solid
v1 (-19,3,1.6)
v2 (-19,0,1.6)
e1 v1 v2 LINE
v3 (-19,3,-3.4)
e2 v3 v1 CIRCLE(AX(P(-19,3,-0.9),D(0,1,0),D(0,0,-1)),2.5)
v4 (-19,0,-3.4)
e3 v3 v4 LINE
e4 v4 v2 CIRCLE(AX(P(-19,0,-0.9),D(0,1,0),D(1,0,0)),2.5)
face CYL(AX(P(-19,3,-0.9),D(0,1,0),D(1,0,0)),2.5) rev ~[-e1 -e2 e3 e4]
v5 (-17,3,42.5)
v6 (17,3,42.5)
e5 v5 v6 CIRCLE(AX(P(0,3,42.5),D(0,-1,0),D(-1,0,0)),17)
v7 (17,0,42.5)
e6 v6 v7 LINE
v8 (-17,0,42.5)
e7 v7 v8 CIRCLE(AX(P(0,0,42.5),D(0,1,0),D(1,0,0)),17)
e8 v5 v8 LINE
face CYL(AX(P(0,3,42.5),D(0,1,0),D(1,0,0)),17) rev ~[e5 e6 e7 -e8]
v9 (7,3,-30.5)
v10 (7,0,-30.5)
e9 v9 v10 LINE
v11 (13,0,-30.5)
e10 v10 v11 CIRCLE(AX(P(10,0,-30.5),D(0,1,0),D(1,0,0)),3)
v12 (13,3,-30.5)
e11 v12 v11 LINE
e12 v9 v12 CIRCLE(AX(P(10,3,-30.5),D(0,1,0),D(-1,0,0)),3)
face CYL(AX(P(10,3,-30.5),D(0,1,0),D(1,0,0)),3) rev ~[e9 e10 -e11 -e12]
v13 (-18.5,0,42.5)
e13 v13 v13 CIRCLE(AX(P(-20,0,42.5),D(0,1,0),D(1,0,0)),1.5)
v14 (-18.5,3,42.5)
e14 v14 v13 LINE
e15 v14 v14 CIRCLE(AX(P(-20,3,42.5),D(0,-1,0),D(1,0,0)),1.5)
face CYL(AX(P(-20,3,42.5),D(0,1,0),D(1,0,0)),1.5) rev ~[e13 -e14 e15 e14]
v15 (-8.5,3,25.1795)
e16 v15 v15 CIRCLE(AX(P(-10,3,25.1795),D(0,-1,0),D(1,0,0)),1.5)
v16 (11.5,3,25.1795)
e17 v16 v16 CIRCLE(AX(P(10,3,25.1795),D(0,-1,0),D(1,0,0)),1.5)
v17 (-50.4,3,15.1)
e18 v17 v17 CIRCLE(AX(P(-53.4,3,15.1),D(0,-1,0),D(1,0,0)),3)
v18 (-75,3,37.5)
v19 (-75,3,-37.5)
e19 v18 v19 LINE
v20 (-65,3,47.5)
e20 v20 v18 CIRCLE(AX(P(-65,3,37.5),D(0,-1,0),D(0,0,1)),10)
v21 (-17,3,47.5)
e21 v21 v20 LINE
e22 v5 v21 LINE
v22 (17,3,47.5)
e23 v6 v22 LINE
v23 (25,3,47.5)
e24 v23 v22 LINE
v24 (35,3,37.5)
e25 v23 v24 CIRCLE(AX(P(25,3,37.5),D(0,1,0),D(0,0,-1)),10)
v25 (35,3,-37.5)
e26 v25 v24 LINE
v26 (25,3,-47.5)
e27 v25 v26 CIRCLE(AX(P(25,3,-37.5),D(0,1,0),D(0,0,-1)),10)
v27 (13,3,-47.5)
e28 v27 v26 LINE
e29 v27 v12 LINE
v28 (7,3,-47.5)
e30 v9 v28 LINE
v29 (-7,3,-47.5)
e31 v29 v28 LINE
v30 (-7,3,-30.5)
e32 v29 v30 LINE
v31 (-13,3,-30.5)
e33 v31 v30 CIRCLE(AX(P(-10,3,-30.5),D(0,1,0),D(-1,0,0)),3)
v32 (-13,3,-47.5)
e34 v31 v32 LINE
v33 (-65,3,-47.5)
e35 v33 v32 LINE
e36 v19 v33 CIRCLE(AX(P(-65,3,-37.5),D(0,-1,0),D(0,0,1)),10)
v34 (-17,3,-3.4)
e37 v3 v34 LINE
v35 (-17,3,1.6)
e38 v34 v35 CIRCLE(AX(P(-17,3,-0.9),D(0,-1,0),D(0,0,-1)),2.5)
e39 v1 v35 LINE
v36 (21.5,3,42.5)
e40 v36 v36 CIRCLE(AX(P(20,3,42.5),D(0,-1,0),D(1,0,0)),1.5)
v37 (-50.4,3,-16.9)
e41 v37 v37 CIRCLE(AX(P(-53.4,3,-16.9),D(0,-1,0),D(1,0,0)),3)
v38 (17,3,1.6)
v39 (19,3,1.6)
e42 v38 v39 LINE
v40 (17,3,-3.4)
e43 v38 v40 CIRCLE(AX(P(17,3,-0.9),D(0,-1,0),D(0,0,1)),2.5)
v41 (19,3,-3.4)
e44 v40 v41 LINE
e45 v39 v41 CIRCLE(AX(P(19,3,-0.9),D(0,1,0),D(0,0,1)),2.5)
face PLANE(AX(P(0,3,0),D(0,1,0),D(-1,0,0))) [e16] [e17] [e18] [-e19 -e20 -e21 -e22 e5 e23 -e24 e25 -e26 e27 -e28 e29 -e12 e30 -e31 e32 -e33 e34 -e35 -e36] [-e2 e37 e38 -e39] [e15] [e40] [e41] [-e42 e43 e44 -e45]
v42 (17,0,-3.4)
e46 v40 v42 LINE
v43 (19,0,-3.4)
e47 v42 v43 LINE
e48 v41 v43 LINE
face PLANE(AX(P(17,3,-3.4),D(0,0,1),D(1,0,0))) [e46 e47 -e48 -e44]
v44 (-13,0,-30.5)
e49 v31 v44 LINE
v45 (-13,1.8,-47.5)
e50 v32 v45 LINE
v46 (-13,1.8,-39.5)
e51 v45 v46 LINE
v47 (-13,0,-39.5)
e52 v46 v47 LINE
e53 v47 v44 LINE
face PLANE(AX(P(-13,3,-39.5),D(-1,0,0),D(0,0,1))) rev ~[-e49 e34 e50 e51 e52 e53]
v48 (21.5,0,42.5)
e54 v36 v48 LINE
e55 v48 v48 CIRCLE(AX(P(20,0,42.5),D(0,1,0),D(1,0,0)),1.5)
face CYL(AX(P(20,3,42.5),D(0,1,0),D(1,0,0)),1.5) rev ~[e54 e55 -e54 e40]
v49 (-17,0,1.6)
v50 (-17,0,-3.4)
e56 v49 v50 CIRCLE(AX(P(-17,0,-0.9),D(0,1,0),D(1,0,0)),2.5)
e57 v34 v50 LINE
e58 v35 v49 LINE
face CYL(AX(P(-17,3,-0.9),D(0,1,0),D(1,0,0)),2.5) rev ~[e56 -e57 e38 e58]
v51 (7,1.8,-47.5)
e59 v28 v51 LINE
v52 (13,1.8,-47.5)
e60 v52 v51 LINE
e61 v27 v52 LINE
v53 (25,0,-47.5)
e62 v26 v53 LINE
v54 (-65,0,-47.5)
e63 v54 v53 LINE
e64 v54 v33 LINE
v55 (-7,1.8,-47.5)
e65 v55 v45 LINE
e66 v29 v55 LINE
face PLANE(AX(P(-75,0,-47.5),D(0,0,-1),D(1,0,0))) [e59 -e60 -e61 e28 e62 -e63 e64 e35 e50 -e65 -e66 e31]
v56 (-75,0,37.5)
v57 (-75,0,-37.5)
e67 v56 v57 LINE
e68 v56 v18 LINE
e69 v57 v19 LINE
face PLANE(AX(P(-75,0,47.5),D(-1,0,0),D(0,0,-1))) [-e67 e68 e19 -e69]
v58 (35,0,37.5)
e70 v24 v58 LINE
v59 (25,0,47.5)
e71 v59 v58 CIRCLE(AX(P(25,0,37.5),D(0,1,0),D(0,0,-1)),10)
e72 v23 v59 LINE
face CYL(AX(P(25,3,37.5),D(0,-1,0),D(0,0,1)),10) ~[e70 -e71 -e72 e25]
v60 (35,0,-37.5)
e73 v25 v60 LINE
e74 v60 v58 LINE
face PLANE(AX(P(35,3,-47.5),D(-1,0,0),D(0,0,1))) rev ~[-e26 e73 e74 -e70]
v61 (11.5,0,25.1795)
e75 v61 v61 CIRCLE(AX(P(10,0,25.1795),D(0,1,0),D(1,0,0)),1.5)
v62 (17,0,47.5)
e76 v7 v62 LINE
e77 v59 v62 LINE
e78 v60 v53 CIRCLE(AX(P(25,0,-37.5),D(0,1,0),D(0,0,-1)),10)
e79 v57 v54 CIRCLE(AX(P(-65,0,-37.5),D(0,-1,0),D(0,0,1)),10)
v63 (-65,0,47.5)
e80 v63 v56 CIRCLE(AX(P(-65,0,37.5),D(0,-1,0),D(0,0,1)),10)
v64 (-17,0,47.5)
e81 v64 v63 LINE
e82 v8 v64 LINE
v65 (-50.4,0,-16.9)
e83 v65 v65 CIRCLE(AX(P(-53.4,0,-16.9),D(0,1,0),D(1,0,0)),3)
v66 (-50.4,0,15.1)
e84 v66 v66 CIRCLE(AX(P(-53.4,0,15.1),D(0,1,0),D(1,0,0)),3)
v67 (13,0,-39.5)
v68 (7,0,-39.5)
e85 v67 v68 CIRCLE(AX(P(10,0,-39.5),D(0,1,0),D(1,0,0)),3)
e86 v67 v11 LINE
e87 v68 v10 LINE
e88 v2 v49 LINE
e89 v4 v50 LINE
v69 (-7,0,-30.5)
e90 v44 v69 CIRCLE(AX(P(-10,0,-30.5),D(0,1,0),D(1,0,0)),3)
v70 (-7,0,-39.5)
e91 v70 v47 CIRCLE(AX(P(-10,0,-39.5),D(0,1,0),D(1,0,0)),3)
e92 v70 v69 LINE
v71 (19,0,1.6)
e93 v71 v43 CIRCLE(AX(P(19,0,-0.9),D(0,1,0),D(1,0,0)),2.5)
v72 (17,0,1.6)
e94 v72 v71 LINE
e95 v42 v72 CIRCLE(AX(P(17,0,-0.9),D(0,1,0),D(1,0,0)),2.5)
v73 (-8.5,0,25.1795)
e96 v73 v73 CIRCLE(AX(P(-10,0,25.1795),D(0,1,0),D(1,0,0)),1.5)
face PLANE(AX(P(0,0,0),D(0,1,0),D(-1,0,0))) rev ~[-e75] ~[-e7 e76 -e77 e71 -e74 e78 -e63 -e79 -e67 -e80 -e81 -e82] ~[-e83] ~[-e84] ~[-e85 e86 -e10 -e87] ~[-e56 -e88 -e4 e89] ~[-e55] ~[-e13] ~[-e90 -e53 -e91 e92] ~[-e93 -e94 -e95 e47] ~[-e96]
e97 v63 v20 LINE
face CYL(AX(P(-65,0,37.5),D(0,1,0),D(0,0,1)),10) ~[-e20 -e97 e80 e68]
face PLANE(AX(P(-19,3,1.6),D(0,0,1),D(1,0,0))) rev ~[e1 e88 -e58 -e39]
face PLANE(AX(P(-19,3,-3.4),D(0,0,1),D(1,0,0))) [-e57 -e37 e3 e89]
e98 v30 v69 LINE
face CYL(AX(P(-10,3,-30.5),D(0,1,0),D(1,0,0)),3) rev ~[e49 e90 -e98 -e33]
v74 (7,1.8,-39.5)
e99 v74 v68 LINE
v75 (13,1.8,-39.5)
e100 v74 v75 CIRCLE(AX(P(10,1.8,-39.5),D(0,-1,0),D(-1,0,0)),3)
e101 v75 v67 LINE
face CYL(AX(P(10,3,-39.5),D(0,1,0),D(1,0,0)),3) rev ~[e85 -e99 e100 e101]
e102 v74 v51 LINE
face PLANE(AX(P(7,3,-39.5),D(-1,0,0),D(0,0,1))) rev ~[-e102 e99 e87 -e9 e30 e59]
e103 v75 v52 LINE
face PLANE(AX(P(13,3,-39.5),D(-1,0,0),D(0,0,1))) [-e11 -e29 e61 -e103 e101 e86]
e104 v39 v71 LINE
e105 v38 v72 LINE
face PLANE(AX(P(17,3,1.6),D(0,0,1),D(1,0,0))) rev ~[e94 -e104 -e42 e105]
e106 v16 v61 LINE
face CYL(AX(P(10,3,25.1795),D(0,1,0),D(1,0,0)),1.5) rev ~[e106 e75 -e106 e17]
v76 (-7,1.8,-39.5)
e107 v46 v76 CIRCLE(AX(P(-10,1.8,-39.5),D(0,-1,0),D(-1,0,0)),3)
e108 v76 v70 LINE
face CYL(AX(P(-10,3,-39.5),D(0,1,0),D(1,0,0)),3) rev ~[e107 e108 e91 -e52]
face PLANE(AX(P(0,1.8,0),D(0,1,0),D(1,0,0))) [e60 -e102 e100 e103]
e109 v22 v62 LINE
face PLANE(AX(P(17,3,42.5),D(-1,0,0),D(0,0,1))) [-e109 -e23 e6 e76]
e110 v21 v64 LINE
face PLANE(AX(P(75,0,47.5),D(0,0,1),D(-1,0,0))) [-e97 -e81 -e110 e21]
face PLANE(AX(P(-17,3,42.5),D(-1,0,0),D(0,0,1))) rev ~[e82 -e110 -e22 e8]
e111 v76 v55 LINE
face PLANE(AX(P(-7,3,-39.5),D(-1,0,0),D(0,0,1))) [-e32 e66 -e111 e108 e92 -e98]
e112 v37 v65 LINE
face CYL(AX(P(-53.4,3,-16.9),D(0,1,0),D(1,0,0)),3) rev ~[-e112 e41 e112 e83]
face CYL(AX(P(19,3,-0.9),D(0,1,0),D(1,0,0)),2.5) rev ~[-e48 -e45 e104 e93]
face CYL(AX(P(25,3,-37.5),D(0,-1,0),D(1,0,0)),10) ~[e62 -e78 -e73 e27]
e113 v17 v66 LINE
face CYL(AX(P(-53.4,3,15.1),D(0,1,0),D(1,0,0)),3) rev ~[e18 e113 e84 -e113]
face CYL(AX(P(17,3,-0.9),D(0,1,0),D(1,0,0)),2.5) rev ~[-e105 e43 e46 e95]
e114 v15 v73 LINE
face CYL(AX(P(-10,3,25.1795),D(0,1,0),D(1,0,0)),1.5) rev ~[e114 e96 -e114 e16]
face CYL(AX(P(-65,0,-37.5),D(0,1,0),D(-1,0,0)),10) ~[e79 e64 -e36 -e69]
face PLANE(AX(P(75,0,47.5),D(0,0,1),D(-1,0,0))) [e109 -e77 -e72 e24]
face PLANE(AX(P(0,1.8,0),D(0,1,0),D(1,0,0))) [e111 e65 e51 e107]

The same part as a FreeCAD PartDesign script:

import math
import FreeCAD as App
import Part
import Sketcher

V = App.Vector


def edges_at(feature, points):
    """Names of the edges that pass closest to the given points."""
    edges = feature.Shape.Edges
    near = lambda p: min(range(len(edges)), key=lambda i: edges[i].distToShape(Part.Vertex(*p))[0])
    return sorted({f"Edge{near(p) + 1}" for p in points})

doc = App.newDocument("Part")
body = doc.addObject("PartDesign::Body", "Body")

# Sketch on XZ plane
sketch1 = doc.addObject("Sketcher::SketchObject", "Sketch")
body.addObject(sketch1)
sketch1.AttachmentSupport = (doc.XZ_Plane, [""])
sketch1.MapMode = "FlatFace"
sketch1.addGeometry(Part.LineSegment(V(-75, 48, 0), V(75, 48, 0)), False)
sketch1.addGeometry(Part.LineSegment(V(75, 48, 0), V(75, -48, 0)), False)
sketch1.addGeometry(Part.LineSegment(V(75, -48, 0), V(-75, -48, 0)), False)
sketch1.addGeometry(Part.LineSegment(V(-75, -48, 0), V(-75, 48, 0)), False)
sketch1.addConstraint(Sketcher.Constraint("Coincident", 0, 2, 1, 1))
sketch1.addConstraint(Sketcher.Constraint("Coincident", 1, 2, 2, 1))
sketch1.addConstraint(Sketcher.Constraint("Coincident", 2, 2, 3, 1))
sketch1.addConstraint(Sketcher.Constraint("Coincident", 3, 2, 0, 1))
sketch1.addConstraint(Sketcher.Constraint("Horizontal", 0))
sketch1.addConstraint(Sketcher.Constraint("Vertical", 1))
sketch1.addConstraint(Sketcher.Constraint("Horizontal", 2))
sketch1.addConstraint(Sketcher.Constraint("Vertical", 3))
sketch1.addConstraint(Sketcher.Constraint("Symmetric", 0, 2, 2, 2, -1, 1))
sketch1.addConstraint(Sketcher.Constraint("DistanceX", 0, 1, 0, 2, 150.0))
sketch1.addConstraint(Sketcher.Constraint("DistanceY", 1, 2, 1, 1, 95.0))
pad1 = doc.addObject("PartDesign::Pad", "Pad")
body.addObject(pad1)
pad1.Profile = sketch1
pad1.Length = 3
pad1.Reversed = True

# Sketch on XZ plane
sketch2 = doc.addObject("Sketcher::SketchObject", "Sketch001")
body.addObject(sketch2)
sketch2.AttachmentSupport = (doc.XZ_Plane, [""])
sketch2.MapMode = "FlatFace"
sketch2.AttachmentOffset = App.Placement(V(0, 0, -3), App.Rotation())
sketch2.addGeometry(Part.ArcOfCircle(Part.Circle(V(10, -39.5, 0), V(0, 0, 1), 3), math.radians(180), math.radians(360)), False)
sketch2.addGeometry(Part.LineSegment(V(7, -39.5, 0), V(7, -30.5, 0)), False)
sketch2.addGeometry(Part.ArcOfCircle(Part.Circle(V(10, -30.5, 0), V(0, 0, 1), 3), math.radians(0), math.radians(180)), False)
sketch2.addGeometry(Part.LineSegment(V(13, -30.5, 0), V(13, -39.5, 0)), False)
sketch2.addGeometry(Part.ArcOfCircle(Part.Circle(V(-10, -39.5, 0), V(0, 0, 1), 3), math.radians(180), math.radians(360)), False)
sketch2.addGeometry(Part.LineSegment(V(-13, -39.5, 0), V(-13, -30.5, 0)), False)
sketch2.addGeometry(Part.ArcOfCircle(Part.Circle(V(-10, -30.5, 0), V(0, 0, 1), 3), math.radians(0), math.radians(180)), False)
sketch2.addGeometry(Part.LineSegment(V(-7, -30.5, 0), V(-7, -39.5, 0)), False)
sketch2.addConstraint(Sketcher.Constraint("Tangent", 0, 1, 1, 1))
sketch2.addConstraint(Sketcher.Constraint("Tangent", 1, 2, 2, 2))
sketch2.addConstraint(Sketcher.Constraint("Tangent", 2, 1, 3, 1))
sketch2.addConstraint(Sketcher.Constraint("Tangent", 3, 2, 0, 2))
sketch2.addConstraint(Sketcher.Constraint("Tangent", 4, 1, 5, 1))
sketch2.addConstraint(Sketcher.Constraint("Tangent", 5, 2, 6, 2))
sketch2.addConstraint(Sketcher.Constraint("Tangent", 6, 1, 7, 1))
sketch2.addConstraint(Sketcher.Constraint("Tangent", 7, 2, 4, 2))
sketch2.addConstraint(Sketcher.Constraint("Vertical", 1))
sketch2.addConstraint(Sketcher.Constraint("Vertical", 3))
sketch2.addConstraint(Sketcher.Constraint("Vertical", 5))
sketch2.addConstraint(Sketcher.Constraint("Vertical", 7))
sketch2.addConstraint(Sketcher.Constraint("Equal", 2, 4))
sketch2.addConstraint(Sketcher.Constraint("Symmetric", 0, 3, 4, 3, -2))
sketch2.addConstraint(Sketcher.Constraint("Horizontal", 2, 3, 6, 3))
sketch2.addConstraint(Sketcher.Constraint("Radius", 0, 3.0))
sketch2.addConstraint(Sketcher.Constraint("DistanceX", 4, 3, 0, 3, 20.0))
sketch2.addConstraint(Sketcher.Constraint("DistanceY", 1, 1, 1, 2, 9.0))
sketch2.addConstraint(Sketcher.Constraint("DistanceY", 0, 3, -1, 1, 39.5))
pocket1 = doc.addObject("PartDesign::Pocket", "Pocket")
body.addObject(pocket1)
pocket1.Profile = sketch2
pocket1.Type = "ThroughAll"
pocket1.Reversed = True

# Sketch on XZ plane
sketch3 = doc.addObject("Sketcher::SketchObject", "Sketch002")
body.addObject(sketch3)
sketch3.AttachmentSupport = (doc.XZ_Plane, [""])
sketch3.MapMode = "FlatFace"
sketch3.AttachmentOffset = App.Placement(V(0, 0, -3), App.Rotation())
sketch3.addGeometry(Part.LineSegment(V(13, -39.5, 0), V(13, -47.5, 0)), False)
sketch3.addGeometry(Part.LineSegment(V(13, -47.5, 0), V(7, -47.5, 0)), False)
sketch3.addGeometry(Part.LineSegment(V(7, -47.5, 0), V(7, -39.5, 0)), False)
sketch3.addGeometry(Part.ArcOfCircle(Part.Circle(V(10, -39.5, 0), V(0, 0, 1), 3), math.radians(180), math.radians(360)), False)
sketch3.addGeometry(Part.LineSegment(V(-7, -39.5, 0), V(-7, -47.5, 0)), False)
sketch3.addGeometry(Part.LineSegment(V(-7, -47.5, 0), V(-13, -47.5, 0)), False)
sketch3.addGeometry(Part.LineSegment(V(-13, -47.5, 0), V(-13, -39.5, 0)), False)
sketch3.addGeometry(Part.ArcOfCircle(Part.Circle(V(-10, -39.5, 0), V(0, 0, 1), 3), math.radians(180), math.radians(360)), False)
sketch3.addConstraint(Sketcher.Constraint("Coincident", 0, 2, 1, 1))
sketch3.addConstraint(Sketcher.Constraint("Coincident", 1, 2, 2, 1))
sketch3.addConstraint(Sketcher.Constraint("Tangent", 2, 2, 3, 1))
sketch3.addConstraint(Sketcher.Constraint("Tangent", 3, 2, 0, 1))
sketch3.addConstraint(Sketcher.Constraint("Coincident", 4, 2, 5, 1))
sketch3.addConstraint(Sketcher.Constraint("Coincident", 5, 2, 6, 1))
sketch3.addConstraint(Sketcher.Constraint("Tangent", 6, 2, 7, 1))
sketch3.addConstraint(Sketcher.Constraint("Tangent", 7, 2, 4, 1))
sketch3.addConstraint(Sketcher.Constraint("Vertical", 0))
sketch3.addConstraint(Sketcher.Constraint("Horizontal", 1))
sketch3.addConstraint(Sketcher.Constraint("Vertical", 2))
sketch3.addConstraint(Sketcher.Constraint("Vertical", 4))
sketch3.addConstraint(Sketcher.Constraint("Horizontal", 5))
sketch3.addConstraint(Sketcher.Constraint("Vertical", 6))
sketch3.addConstraint(Sketcher.Constraint("Equal", 3, 7))
sketch3.addConstraint(Sketcher.Constraint("Symmetric", 3, 3, 7, 3, -2))
sketch3.addConstraint(Sketcher.Constraint("Horizontal", 1, 2, 4, 2))
sketch3.addConstraint(Sketcher.Constraint("Radius", 3, 3.0))
sketch3.addConstraint(Sketcher.Constraint("DistanceX", 7, 3, 3, 3, 20.0))
sketch3.addConstraint(Sketcher.Constraint("DistanceY", 0, 2, 0, 1, 8.0))
sketch3.addConstraint(Sketcher.Constraint("DistanceY", 3, 3, -1, 1, 39.5))
pocket2 = doc.addObject("PartDesign::Pocket", "Pocket001")
body.addObject(pocket2)
pocket2.Profile = sketch3
pocket2.Length = 1.2
pocket2.Reversed = True

# Sketch on XZ plane
sketch4 = doc.addObject("Sketcher::SketchObject", "Sketch003")
body.addObject(sketch4)
sketch4.AttachmentSupport = (doc.XZ_Plane, [""])
sketch4.MapMode = "FlatFace"
sketch4.AttachmentOffset = App.Placement(V(0, 0, -3), App.Rotation())
sketch4.addGeometry(Part.Circle(V(-53.4, 15.1, 0), V(0, 0, 1), 3), False)
sketch4.addGeometry(Part.Circle(V(-53.4, -16.9, 0), V(0, 0, 1), 3), False)
sketch4.addGeometry(Part.ArcOfCircle(Part.Circle(V(-17, -0.9, 0), V(0, 0, 1), 2.5), math.radians(-90), math.radians(90)), False)
sketch4.addGeometry(Part.LineSegment(V(-17, -3.4, 0), V(-19, -3.4, 0)), False)
sketch4.addGeometry(Part.ArcOfCircle(Part.Circle(V(-19, -0.9, 0), V(0, 0, 1), 2.5), math.radians(90), math.radians(270)), False)
sketch4.addGeometry(Part.LineSegment(V(-19, 1.6, 0), V(-17, 1.6, 0)), False)
sketch4.addGeometry(Part.ArcOfCircle(Part.Circle(V(17, -0.9, 0), V(0, 0, 1), 2.5), math.radians(90), math.radians(270)), False)
sketch4.addGeometry(Part.LineSegment(V(17, 1.6, 0), V(19, 1.6, 0)), False)
sketch4.addGeometry(Part.ArcOfCircle(Part.Circle(V(19, -0.9, 0), V(0, 0, 1), 2.5), math.radians(-90), math.radians(90)), False)
sketch4.addGeometry(Part.LineSegment(V(19, -3.4, 0), V(17, -3.4, 0)), False)
sketch4.addConstraint(Sketcher.Constraint("Tangent", 2, 1, 3, 1))
sketch4.addConstraint(Sketcher.Constraint("Tangent", 3, 2, 4, 2))
sketch4.addConstraint(Sketcher.Constraint("Tangent", 4, 1, 5, 1))
sketch4.addConstraint(Sketcher.Constraint("Tangent", 5, 2, 2, 2))
sketch4.addConstraint(Sketcher.Constraint("Tangent", 6, 1, 7, 1))
sketch4.addConstraint(Sketcher.Constraint("Tangent", 7, 2, 8, 2))
sketch4.addConstraint(Sketcher.Constraint("Tangent", 8, 1, 9, 1))
sketch4.addConstraint(Sketcher.Constraint("Tangent", 9, 2, 6, 2))
sketch4.addConstraint(Sketcher.Constraint("Horizontal", 3))
sketch4.addConstraint(Sketcher.Constraint("Horizontal", 5))
sketch4.addConstraint(Sketcher.Constraint("Horizontal", 7))
sketch4.addConstraint(Sketcher.Constraint("Horizontal", 9))
sketch4.addConstraint(Sketcher.Constraint("Equal", 0, 1))
sketch4.addConstraint(Sketcher.Constraint("Equal", 4, 6))
sketch4.addConstraint(Sketcher.Constraint("Symmetric", 2, 3, 6, 3, -2))
sketch4.addConstraint(Sketcher.Constraint("Vertical", 0, 3, 1, 3))
sketch4.addConstraint(Sketcher.Constraint("Equal", 5, 7))
sketch4.addConstraint(Sketcher.Constraint("Diameter", 0, 6.0))
sketch4.addConstraint(Sketcher.Constraint("Radius", 2, 2.5))
sketch4.addConstraint(Sketcher.Constraint("DistanceX", 3, 2, 3, 1, 2.0))
sketch4.addConstraint(Sketcher.Constraint("DistanceY", 1, 3, 0, 3, 32.0))
sketch4.addConstraint(Sketcher.Constraint("DistanceX", 4, 3, 8, 3, 38.0))
sketch4.addConstraint(Sketcher.Constraint("DistanceX", 0, 3, -1, 1, 53.4))
sketch4.addConstraint(Sketcher.Constraint("DistanceY", 2, 3, 0, 3, 16.0))
sketch4.addConstraint(Sketcher.Constraint("DistanceY", -1, 1, 0, 3, 15.1))
pocket3 = doc.addObject("PartDesign::Pocket", "Pocket002")
body.addObject(pocket3)
pocket3.Profile = sketch4
pocket3.Type = "ThroughAll"
pocket3.Reversed = True

# Sketch on XZ plane
sketch5 = doc.addObject("Sketcher::SketchObject", "Sketch004")
body.addObject(sketch5)
sketch5.AttachmentSupport = (doc.XZ_Plane, [""])
sketch5.MapMode = "FlatFace"
sketch5.AttachmentOffset = App.Placement(V(0, 0, -3), App.Rotation())
sketch5.addGeometry(Part.LineSegment(V(75, 48, 0), V(75, -48, 0)), False)
sketch5.addGeometry(Part.LineSegment(V(75, -48, 0), V(35, -48, 0)), False)
sketch5.addGeometry(Part.LineSegment(V(35, -48, 0), V(35, 48, 0)), False)
sketch5.addGeometry(Part.LineSegment(V(35, 48, 0), V(75, 48, 0)), False)
sketch5.addConstraint(Sketcher.Constraint("Coincident", 0, 2, 1, 1))
sketch5.addConstraint(Sketcher.Constraint("Coincident", 1, 2, 2, 1))
sketch5.addConstraint(Sketcher.Constraint("Coincident", 2, 2, 3, 1))
sketch5.addConstraint(Sketcher.Constraint("Coincident", 3, 2, 0, 1))
sketch5.addConstraint(Sketcher.Constraint("Vertical", 0))
sketch5.addConstraint(Sketcher.Constraint("Horizontal", 1))
sketch5.addConstraint(Sketcher.Constraint("Vertical", 2))
sketch5.addConstraint(Sketcher.Constraint("Horizontal", 3))
sketch5.addConstraint(Sketcher.Constraint("DistanceX", 1, 2, 1, 1, 40.0))
sketch5.addConstraint(Sketcher.Constraint("DistanceY", 0, 2, 0, 1, 95.0))
sketch5.addConstraint(Sketcher.Constraint("DistanceX", -1, 1, 0, 2, 75.0))
sketch5.addConstraint(Sketcher.Constraint("DistanceY", 0, 2, -1, 1, 47.5))
pocket4 = doc.addObject("PartDesign::Pocket", "Pocket003")
body.addObject(pocket4)
pocket4.Profile = sketch5
pocket4.Type = "ThroughAll"
pocket4.Reversed = True

# Sketch on XZ plane
sketch6 = doc.addObject("Sketcher::SketchObject", "Sketch005")
body.addObject(sketch6)
sketch6.AttachmentSupport = (doc.XZ_Plane, [""])
sketch6.MapMode = "FlatFace"
sketch6.AttachmentOffset = App.Placement(V(0, 0, -3), App.Rotation())
sketch6.addGeometry(Part.LineSegment(V(-17, 42.5, 0), V(-17, 47.5, 0)), False)
sketch6.addGeometry(Part.LineSegment(V(-17, 47.5, 0), V(17, 47.5, 0)), False)
sketch6.addGeometry(Part.LineSegment(V(17, 47.5, 0), V(17, 42.5, 0)), False)
sketch6.addGeometry(Part.ArcOfCircle(Part.Circle(V(0, 42.5, 0), V(0, 0, 1), 17), math.radians(180), math.radians(360)), False)
sketch6.addGeometry(Part.Circle(V(-20, 42.5, 0), V(0, 0, 1), 1.5), False)
sketch6.addGeometry(Part.Circle(V(10, 25.2, 0), V(0, 0, 1), 1.5), False)
sketch6.addGeometry(Part.Circle(V(-10, 25.2, 0), V(0, 0, 1), 1.5), False)
sketch6.addGeometry(Part.Circle(V(20, 42.5, 0), V(0, 0, 1), 1.5), False)
sketch6.addConstraint(Sketcher.Constraint("Coincident", 0, 2, 1, 1))
sketch6.addConstraint(Sketcher.Constraint("Coincident", 1, 2, 2, 1))
sketch6.addConstraint(Sketcher.Constraint("Tangent", 2, 2, 3, 2))
sketch6.addConstraint(Sketcher.Constraint("Tangent", 3, 1, 0, 1))
sketch6.addConstraint(Sketcher.Constraint("Vertical", 0))
sketch6.addConstraint(Sketcher.Constraint("Horizontal", 1))
sketch6.addConstraint(Sketcher.Constraint("Vertical", 2))
sketch6.addConstraint(Sketcher.Constraint("Equal", 4, 5))
sketch6.addConstraint(Sketcher.Constraint("Equal", 5, 6))
sketch6.addConstraint(Sketcher.Constraint("Equal", 6, 7))
sketch6.addConstraint(Sketcher.Constraint("Symmetric", 5, 3, 6, 3, -2))
sketch6.addConstraint(Sketcher.Constraint("Symmetric", 4, 3, 7, 3, -2))
sketch6.addConstraint(Sketcher.Constraint("PointOnObject", 3, 3, -2))
sketch6.addConstraint(Sketcher.Constraint("Horizontal", 3, 3, 4, 3))
sketch6.addConstraint(Sketcher.Constraint("Diameter", 4, 3.0))
sketch6.addConstraint(Sketcher.Constraint("Radius", 3, 17.0))
sketch6.addConstraint(Sketcher.Constraint("DistanceX", 4, 3, -1, 1, 20.0))
sketch6.addConstraint(Sketcher.Constraint("DistanceX", 6, 3, 5, 3, 20.0))
sketch6.addConstraint(Sketcher.Constraint("DistanceY", 0, 1, 0, 2, 5.0))
sketch6.addConstraint(Sketcher.Constraint("DistanceY", -1, 1, 3, 3, 42.5))
sketch6.addConstraint(Sketcher.Constraint("DistanceY", -1, 1, 5, 3, 25.1795))
pocket5 = doc.addObject("PartDesign::Pocket", "Pocket004")
body.addObject(pocket5)
pocket5.Profile = sketch6
pocket5.Type = "ThroughAll"
pocket5.Reversed = True
doc.recompute()

fillet = doc.addObject("PartDesign::Fillet", "Fillet")
body.addObject(fillet)
fillet.Base = (pocket5, edges_at(pocket5, [
    (35, 1.5, 47.5),
    (35, 1.5, -47.5),
    (-75, 1.5, 47.5),
    (-75, 1.5, -47.5),
]))
fillet.Radius = 10

doc.recompute()
